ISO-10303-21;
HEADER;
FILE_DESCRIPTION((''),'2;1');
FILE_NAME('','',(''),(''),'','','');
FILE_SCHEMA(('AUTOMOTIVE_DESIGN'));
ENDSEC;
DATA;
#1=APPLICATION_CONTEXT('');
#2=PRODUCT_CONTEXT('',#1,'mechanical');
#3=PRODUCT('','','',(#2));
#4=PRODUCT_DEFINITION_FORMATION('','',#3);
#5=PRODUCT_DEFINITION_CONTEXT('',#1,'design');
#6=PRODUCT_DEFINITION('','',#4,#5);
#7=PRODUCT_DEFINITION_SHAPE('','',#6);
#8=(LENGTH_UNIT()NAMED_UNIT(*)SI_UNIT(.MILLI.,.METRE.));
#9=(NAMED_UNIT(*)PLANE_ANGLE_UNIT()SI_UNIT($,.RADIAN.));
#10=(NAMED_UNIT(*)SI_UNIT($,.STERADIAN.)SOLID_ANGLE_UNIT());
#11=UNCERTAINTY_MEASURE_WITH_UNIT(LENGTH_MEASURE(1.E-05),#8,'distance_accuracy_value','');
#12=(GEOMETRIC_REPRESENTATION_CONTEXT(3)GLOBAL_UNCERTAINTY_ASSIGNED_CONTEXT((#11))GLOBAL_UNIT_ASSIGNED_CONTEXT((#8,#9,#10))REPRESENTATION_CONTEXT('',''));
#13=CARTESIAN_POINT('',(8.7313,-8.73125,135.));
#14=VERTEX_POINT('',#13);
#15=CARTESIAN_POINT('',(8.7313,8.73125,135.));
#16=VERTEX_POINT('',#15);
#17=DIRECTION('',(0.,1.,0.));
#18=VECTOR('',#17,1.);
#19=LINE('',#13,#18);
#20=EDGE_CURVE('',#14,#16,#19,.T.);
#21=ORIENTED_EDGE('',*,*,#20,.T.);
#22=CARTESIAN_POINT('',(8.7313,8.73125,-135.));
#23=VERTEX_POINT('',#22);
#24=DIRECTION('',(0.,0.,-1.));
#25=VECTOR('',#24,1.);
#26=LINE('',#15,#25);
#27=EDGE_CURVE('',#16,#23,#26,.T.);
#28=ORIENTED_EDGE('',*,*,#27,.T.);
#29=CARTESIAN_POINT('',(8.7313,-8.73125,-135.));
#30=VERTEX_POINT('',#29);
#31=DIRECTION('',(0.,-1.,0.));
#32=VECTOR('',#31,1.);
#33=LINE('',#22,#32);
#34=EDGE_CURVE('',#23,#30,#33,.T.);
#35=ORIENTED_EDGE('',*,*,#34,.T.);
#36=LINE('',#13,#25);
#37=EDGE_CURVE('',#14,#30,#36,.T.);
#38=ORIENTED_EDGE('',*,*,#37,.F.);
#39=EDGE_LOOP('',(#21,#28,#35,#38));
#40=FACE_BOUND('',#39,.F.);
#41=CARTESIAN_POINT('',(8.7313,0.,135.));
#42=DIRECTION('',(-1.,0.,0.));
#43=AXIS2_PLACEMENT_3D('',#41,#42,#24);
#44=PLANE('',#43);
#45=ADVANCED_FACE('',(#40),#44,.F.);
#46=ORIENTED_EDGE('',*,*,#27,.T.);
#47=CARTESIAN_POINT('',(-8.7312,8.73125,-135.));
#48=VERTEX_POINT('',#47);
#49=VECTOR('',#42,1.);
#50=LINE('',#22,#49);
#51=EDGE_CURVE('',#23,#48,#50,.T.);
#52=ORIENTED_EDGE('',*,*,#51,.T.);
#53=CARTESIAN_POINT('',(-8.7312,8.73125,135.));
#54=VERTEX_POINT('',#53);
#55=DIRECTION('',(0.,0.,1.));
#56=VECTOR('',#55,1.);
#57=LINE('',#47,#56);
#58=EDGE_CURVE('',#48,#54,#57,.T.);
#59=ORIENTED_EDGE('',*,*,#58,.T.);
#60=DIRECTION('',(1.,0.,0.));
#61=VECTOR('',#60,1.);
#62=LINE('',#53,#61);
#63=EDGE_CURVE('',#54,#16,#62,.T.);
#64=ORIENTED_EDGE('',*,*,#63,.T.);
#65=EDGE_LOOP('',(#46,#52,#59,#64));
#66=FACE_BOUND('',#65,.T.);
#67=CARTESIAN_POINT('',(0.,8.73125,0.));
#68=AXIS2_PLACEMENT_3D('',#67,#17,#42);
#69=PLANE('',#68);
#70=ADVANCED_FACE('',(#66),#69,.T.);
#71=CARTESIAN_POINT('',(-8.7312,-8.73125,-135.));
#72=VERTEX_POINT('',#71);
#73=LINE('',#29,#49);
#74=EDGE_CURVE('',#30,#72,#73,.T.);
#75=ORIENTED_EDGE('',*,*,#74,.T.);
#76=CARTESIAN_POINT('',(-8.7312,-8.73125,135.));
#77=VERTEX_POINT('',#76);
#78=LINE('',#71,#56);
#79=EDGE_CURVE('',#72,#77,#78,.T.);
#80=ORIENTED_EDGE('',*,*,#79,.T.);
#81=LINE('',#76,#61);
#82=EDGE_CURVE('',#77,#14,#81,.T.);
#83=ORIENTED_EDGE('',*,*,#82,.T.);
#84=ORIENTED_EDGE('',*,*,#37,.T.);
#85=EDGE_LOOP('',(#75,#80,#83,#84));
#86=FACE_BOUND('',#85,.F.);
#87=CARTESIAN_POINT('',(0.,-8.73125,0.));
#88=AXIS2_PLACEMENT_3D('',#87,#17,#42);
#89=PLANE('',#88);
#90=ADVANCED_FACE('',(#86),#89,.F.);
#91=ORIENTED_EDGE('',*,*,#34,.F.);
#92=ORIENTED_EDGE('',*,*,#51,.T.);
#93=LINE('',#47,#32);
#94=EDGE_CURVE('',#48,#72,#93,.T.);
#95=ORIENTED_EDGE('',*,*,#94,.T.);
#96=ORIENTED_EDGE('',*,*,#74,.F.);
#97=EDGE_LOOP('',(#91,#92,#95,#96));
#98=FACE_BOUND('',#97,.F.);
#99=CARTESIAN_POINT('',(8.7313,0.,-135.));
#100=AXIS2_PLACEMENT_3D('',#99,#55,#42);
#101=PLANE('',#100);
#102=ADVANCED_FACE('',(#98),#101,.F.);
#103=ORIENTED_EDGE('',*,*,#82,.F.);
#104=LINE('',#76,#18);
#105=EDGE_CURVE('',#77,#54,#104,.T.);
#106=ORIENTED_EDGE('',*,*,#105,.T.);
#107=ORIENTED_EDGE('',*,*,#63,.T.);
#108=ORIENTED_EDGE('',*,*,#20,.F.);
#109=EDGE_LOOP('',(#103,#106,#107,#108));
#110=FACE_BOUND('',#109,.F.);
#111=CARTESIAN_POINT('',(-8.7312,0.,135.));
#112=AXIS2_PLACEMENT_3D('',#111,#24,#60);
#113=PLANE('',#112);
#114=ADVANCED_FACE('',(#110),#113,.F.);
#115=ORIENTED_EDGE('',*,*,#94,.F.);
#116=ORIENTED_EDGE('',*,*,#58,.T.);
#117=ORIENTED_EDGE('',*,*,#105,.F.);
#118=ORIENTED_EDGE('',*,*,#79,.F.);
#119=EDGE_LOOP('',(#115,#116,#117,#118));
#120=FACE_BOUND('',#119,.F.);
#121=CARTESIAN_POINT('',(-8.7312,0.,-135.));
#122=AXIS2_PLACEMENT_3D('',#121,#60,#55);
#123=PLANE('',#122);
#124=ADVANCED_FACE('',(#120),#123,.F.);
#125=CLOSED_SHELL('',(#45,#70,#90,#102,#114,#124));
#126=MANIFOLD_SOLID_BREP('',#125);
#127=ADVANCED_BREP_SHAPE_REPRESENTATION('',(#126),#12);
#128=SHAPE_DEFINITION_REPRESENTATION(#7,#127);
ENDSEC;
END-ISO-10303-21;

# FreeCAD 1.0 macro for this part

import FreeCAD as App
import Part
import Sketcher
from FreeCAD import Vector
Q = App.Units.Quantity


def add_polygon(sketch, points):
    """Adds a closed chain of lines whose ends are joined by coincident constraints."""
    first, n = sketch.GeometryCount, len(points)
    for a, b in zip(points, points[1:] + points[:1]):
        sketch.addGeometry(Part.LineSegment(App.Vector(*a, 0), App.Vector(*b, 0)), False)
    for i in range(n):
        sketch.addConstraint(Sketcher.Constraint("Coincident", first + i, 2, first + (i + 1) % n, 1))

doc = App.newDocument("Part")
body = doc.addObject("PartDesign::Body", "Body")

# Sketch on XZ plane
sketch1 = doc.addObject("Sketcher::SketchObject", "Sketch")
body.addObject(sketch1)
sketch1.AttachmentSupport = (doc.XZ_Plane, [""])
sketch1.MapMode = "FlatFace"
add_polygon(sketch1, [(-9, -135), (-9, 135), (9, 135), (9, -135)])  # lines 0-3
sketch1.addConstraint(Sketcher.Constraint("Vertical", 0))
sketch1.addConstraint(Sketcher.Constraint("Horizontal", 1))
sketch1.addConstraint(Sketcher.Constraint("Vertical", 2))
sketch1.addConstraint(Sketcher.Constraint("Horizontal", 3))
sketch1.addConstraint(Sketcher.Constraint("Symmetric", 0, 2, 2, 2, -1, 1))
sketch1.addConstraint(Sketcher.Constraint("DistanceX", 1, 1, 1, 2, Q("0.6875 in")))
sketch1.addConstraint(Sketcher.Constraint("DistanceY", 0, 1, 0, 2, 270.0))
pad1 = doc.addObject("PartDesign::Pad", "Pad")
body.addObject(pad1)
pad1.Profile = sketch1
pad1.Length = Q("0.6875 in")
pad1.Midplane = True

doc.recompute()
